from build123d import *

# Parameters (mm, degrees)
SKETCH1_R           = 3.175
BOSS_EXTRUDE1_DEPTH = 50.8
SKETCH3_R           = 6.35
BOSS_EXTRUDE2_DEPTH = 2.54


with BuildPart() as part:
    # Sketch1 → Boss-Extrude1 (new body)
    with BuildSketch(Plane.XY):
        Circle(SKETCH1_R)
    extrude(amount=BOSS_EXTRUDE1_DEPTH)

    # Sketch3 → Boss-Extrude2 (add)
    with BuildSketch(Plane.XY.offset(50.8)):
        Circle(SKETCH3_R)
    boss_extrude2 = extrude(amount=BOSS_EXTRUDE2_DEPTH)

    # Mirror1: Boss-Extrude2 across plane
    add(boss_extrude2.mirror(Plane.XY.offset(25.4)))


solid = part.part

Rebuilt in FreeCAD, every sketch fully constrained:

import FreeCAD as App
import Part
import Sketcher
from FreeCAD import Vector
Q = App.Units.Quantity

doc = App.newDocument("Part")
body = doc.addObject("PartDesign::Body", "Body")

# Sketch on XY plane
sketch1 = body.newObject("Sketcher::SketchObject", "Sketch")
sketch1.AttachmentSupport = (doc.getObject("XY_Plane"), [""])
sketch1.MapMode = "FlatFace"
sketch1.addGeometry(Part.Circle(Vector(0, 0, 0), Vector(0, 0, 1), 3.2), False)
sketch1.addConstraint(Sketcher.Constraint("Coincident", 0, 3, -1, 1))
sketch1.addConstraint(Sketcher.Constraint("Diameter", 0, Q("0.25 in")))
pad1 = body.newObject("PartDesign::Pad", "Pad")
pad1.Profile = sketch1
pad1.Length = Q("2 in")

# Sketch on XY plane
sketch2 = body.newObject("Sketcher::SketchObject", "Sketch001")
sketch2.AttachmentSupport = (doc.getObject("XY_Plane"), [""])
sketch2.MapMode = "FlatFace"
sketch2.AttachmentOffset = App.Placement(Vector(0, 0, 2 * 25.4), App.Rotation())
sketch2.addGeometry(Part.Circle(Vector(0, 0, 0), Vector(0, 0, 1), 6), False)
sketch2.addConstraint(Sketcher.Constraint("Coincident", 0, 3, -1, 1))
sketch2.addConstraint(Sketcher.Constraint("Diameter", 0, Q("0.5 in")))
pad2 = body.newObject("PartDesign::Pad", "Pad001")
pad2.Profile = sketch2
pad2.Length = Q("0.1 in")
doc.recompute()

datumplane = body.newObject("PartDesign::Plane", "DatumPlane")
datumplane.AttachmentSupport = (doc.getObject("XY_Plane"), [""])
datumplane.MapMode = "FlatFace"
datumplane.AttachmentOffset = App.Placement(Vector(0, 0, 1 * 25.4), App.Rotation())
mirrored = body.newObject("PartDesign::Mirrored", "Mirrored")
mirrored.Originals = [pad2]
mirrored.MirrorPlane = (datumplane, [""])
body.Tip = mirrored

doc.recompute()
